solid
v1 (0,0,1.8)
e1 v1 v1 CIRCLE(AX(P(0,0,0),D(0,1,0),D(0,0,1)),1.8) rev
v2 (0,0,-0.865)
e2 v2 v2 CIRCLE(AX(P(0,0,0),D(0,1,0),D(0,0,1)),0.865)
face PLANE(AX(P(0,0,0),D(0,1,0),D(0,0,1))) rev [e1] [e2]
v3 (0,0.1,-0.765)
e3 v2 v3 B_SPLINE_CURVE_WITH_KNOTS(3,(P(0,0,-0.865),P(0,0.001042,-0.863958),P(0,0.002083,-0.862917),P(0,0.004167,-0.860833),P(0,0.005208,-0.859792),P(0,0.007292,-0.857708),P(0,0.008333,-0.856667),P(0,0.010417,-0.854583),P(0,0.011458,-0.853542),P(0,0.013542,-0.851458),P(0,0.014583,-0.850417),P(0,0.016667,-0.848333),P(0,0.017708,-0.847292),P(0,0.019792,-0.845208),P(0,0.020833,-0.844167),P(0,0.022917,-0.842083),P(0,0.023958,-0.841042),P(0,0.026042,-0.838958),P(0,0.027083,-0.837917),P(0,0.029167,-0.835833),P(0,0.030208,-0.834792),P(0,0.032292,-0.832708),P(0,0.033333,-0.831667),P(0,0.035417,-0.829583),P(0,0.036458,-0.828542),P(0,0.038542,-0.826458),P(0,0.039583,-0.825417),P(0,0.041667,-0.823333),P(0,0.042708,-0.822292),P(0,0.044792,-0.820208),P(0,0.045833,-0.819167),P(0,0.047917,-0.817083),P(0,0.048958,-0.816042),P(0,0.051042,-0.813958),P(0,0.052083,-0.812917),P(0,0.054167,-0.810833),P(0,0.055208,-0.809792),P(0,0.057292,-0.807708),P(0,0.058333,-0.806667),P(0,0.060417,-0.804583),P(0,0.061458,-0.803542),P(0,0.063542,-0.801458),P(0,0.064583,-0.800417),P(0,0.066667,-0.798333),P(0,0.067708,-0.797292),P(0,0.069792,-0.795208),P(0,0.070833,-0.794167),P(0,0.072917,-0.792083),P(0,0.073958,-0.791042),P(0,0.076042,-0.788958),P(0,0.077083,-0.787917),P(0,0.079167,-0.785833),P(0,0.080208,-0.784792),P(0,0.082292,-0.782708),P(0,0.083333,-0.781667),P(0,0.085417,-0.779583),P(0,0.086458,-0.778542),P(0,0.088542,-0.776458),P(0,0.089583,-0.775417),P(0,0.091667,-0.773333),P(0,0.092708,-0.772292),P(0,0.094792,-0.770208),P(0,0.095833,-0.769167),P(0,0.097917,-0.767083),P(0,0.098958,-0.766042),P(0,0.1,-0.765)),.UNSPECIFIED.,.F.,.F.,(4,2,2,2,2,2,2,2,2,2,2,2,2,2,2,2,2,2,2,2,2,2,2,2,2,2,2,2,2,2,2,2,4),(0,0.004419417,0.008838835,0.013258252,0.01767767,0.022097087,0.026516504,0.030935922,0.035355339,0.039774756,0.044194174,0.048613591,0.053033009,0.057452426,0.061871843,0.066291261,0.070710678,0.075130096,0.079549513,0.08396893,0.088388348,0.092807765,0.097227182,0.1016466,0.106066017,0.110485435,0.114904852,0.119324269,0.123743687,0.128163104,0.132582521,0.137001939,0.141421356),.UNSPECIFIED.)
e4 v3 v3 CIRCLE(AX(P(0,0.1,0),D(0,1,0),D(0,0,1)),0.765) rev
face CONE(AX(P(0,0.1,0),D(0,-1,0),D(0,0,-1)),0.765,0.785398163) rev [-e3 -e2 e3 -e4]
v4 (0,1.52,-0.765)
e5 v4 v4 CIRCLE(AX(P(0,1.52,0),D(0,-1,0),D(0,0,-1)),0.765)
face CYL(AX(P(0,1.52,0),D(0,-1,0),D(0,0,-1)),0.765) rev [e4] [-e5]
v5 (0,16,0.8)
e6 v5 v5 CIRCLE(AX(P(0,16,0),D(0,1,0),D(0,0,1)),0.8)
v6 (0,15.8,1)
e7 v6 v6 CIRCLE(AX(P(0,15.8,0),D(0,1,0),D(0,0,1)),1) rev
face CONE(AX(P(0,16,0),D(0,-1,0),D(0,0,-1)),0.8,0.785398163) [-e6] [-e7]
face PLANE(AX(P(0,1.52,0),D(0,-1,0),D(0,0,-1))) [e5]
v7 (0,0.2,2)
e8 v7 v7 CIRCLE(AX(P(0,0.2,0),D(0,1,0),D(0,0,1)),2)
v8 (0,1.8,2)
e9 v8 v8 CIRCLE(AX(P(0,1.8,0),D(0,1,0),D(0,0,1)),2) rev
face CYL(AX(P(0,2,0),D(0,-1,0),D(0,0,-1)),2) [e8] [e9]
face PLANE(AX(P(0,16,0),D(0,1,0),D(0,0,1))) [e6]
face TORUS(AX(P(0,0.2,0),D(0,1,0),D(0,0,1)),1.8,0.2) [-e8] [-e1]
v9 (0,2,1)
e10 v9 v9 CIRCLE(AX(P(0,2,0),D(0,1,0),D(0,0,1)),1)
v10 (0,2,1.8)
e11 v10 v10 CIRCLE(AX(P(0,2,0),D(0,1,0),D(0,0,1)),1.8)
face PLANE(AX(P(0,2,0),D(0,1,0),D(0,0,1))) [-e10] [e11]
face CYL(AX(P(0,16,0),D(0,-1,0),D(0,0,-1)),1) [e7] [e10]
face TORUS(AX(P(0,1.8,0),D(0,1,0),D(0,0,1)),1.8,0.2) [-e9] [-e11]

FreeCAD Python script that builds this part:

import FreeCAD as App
import Part
import Sketcher
Q = App.Units.Quantity


def edges_at(feature, points):
    """Names of the edges that pass closest to the given points."""
    edges = feature.Shape.Edges
    near = lambda p: min(range(len(edges)), key=lambda i: edges[i].distToShape(Part.Vertex(*p))[0])
    return sorted({f"Edge{near(p) + 1}" for p in points})

doc = App.newDocument("Part")
body = doc.addObject("PartDesign::Body", "Body")

# Sketch on XZ plane
sketch1 = doc.addObject("Sketcher::SketchObject", "Sketch")
body.addObject(sketch1)
sketch1.AttachmentSupport = (doc.XZ_Plane, [""])
sketch1.MapMode = "FlatFace"
sketch1.addGeometry(Part.Circle(App.Vector(0, 0, 0), App.Vector(0, 0, 1), 2), False)
sketch1.addConstraint(Sketcher.Constraint("Coincident", 0, 3, -1, 1))
sketch1.addConstraint(Sketcher.Constraint("Diameter", 0, Q("4 mm")))
pad1 = doc.addObject("PartDesign::Pad", "Pad")
body.addObject(pad1)
pad1.Profile = sketch1
pad1.Length = 2
pad1.Reversed = True

# Sketch on XZ plane
sketch2 = doc.addObject("Sketcher::SketchObject", "Sketch001")
body.addObject(sketch2)
sketch2.AttachmentSupport = (doc.XZ_Plane, [""])
sketch2.MapMode = "FlatFace"
sketch2.AttachmentOffset = App.Placement(App.Vector(0, 0, -2), App.Rotation())
sketch2.addGeometry(Part.Circle(App.Vector(0, 0, 0), App.Vector(0, 0, 1), 1), False)
sketch2.addConstraint(Sketcher.Constraint("Coincident", 0, 3, -1, 1))
sketch2.addConstraint(Sketcher.Constraint("Diameter", 0, Q("2 mm")))
pad2 = doc.addObject("PartDesign::Pad", "Pad001")
body.addObject(pad2)
pad2.Profile = sketch2
pad2.Length = 14
pad2.Reversed = True
doc.recompute()

fillet = doc.addObject("PartDesign::Fillet", "Fillet")
body.addObject(fillet)
fillet.Base = (pad2, edges_at(pad2, [(0, 0, -2), (0, 2, -2)]))
fillet.Radius = 0.2

# Sketch on XZ plane
sketch3 = doc.addObject("Sketcher::SketchObject", "Sketch002")
body.addObject(sketch3)
sketch3.AttachmentSupport = (doc.XZ_Plane, [""])
sketch3.MapMode = "FlatFace"
sketch3.addGeometry(Part.Circle(App.Vector(0, 0, 0), App.Vector(0, 0, 1), 0.8), False)
sketch3.addConstraint(Sketcher.Constraint("Coincident", 0, 3, -1, 1))
sketch3.addConstraint(Sketcher.Constraint("Diameter", 0, Q("1.53 mm")))
pocket1 = doc.addObject("PartDesign::Pocket", "Pocket")
body.addObject(pocket1)
pocket1.Profile = sketch3
pocket1.Length = 1.52
doc.recompute()

chamfer = doc.addObject("PartDesign::Chamfer", "Chamfer")
body.addObject(chamfer)
chamfer.Base = (pocket1, edges_at(pocket1, [(0, 0, 0.765)]))
chamfer.Size = 0.1
doc.recompute()

chamfer2 = doc.addObject("PartDesign::Chamfer", "Chamfer001")
body.addObject(chamfer2)
chamfer2.Base = (chamfer, edges_at(chamfer, [(0, 16, -1)]))
chamfer2.Size = 0.2

doc.recompute()
